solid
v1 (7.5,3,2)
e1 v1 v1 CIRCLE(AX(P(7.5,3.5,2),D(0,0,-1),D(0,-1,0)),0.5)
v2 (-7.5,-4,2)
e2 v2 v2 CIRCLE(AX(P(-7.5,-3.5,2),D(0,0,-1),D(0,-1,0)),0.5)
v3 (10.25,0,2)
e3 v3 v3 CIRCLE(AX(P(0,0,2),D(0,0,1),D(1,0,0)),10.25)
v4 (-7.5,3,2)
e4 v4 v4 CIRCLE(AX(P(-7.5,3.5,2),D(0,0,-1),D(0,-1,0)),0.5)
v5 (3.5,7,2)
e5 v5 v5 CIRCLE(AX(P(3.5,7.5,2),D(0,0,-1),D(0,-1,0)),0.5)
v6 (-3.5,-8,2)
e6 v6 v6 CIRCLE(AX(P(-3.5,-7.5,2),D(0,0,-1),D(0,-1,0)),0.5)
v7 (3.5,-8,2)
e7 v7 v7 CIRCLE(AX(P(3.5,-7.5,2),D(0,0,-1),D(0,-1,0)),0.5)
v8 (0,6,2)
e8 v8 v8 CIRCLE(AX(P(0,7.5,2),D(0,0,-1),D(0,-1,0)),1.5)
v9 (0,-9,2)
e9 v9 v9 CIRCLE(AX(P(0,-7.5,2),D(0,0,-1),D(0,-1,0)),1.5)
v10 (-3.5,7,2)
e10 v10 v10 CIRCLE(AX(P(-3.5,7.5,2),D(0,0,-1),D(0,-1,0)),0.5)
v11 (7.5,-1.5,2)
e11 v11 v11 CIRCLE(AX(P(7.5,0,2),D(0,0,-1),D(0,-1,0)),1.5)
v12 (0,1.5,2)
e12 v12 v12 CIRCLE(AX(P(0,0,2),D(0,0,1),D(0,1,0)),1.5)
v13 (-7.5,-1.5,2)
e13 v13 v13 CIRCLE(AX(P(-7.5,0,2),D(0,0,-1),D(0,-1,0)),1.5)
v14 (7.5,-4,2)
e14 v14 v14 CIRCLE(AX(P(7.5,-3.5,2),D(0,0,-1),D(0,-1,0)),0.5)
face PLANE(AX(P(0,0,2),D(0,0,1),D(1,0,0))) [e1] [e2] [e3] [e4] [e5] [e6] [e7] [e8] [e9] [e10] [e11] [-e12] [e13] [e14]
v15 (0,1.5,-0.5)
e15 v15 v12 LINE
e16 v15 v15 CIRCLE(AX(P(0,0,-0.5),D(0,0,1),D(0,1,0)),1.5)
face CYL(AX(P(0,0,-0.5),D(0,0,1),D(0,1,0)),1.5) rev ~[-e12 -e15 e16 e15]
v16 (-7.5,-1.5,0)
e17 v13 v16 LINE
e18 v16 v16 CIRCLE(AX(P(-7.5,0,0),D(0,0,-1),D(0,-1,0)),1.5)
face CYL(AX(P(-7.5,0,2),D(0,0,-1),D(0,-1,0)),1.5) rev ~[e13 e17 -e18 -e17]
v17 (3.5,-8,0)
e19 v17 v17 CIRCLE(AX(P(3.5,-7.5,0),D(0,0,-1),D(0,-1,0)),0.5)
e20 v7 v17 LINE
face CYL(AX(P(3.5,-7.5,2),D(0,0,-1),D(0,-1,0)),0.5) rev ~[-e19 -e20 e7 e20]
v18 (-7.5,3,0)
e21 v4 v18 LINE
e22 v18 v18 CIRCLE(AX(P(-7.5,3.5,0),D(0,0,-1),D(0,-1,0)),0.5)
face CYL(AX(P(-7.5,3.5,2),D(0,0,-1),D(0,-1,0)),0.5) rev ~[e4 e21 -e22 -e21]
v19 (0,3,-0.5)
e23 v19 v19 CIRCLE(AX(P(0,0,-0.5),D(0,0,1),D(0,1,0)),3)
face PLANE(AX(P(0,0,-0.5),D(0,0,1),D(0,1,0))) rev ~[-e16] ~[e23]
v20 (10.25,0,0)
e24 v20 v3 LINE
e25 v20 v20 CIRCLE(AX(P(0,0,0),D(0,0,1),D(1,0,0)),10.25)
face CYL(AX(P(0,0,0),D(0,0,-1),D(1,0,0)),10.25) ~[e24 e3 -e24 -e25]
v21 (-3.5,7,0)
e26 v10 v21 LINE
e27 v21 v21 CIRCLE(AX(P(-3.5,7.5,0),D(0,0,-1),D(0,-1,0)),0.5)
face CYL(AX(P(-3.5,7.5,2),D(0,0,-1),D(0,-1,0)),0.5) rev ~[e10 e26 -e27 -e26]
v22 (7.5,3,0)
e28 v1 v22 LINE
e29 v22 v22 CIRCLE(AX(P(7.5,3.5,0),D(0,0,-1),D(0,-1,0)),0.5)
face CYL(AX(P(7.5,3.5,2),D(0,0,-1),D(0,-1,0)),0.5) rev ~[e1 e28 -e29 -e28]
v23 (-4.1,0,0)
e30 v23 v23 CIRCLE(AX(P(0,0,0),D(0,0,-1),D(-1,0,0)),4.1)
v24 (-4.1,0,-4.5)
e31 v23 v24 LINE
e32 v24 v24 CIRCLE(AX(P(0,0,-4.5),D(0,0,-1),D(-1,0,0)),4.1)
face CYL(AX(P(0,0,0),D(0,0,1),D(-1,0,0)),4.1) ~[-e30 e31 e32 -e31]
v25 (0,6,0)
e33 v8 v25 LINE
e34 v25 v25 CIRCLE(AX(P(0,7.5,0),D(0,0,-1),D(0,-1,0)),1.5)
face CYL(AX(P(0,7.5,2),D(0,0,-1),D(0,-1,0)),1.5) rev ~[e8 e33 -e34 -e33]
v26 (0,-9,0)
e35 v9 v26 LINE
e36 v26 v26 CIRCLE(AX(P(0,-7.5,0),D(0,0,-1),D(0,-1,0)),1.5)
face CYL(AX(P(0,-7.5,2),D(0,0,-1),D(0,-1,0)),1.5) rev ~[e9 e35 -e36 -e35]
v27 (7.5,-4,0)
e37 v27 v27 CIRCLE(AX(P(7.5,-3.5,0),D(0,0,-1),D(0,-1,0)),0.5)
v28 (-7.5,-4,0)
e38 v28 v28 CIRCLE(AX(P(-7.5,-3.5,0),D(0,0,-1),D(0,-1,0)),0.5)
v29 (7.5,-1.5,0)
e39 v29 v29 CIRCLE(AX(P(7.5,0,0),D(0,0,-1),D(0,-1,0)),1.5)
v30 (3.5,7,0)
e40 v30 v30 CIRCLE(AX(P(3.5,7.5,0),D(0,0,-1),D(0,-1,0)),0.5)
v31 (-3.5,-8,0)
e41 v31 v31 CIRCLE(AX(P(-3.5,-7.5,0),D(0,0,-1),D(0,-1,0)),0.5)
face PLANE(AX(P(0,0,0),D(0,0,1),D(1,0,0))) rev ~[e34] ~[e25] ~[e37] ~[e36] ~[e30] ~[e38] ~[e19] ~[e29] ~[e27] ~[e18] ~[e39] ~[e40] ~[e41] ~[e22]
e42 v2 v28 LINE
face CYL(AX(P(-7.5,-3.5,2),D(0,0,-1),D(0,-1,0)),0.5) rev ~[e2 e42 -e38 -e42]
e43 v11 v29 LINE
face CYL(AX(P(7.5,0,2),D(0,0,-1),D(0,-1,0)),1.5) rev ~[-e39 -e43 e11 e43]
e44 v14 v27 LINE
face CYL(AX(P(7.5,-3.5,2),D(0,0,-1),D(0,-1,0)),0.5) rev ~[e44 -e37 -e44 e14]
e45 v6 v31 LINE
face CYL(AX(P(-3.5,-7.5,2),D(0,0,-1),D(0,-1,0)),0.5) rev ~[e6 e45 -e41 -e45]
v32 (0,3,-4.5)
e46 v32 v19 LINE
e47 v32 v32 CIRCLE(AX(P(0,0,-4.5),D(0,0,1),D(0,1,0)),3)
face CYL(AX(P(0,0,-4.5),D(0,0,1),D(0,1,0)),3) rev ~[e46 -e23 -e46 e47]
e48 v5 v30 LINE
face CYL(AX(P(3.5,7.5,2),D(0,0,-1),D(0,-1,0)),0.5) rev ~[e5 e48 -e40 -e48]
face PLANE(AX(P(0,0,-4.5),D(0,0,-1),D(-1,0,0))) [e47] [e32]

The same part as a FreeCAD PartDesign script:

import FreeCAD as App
import Part
import Sketcher

V = App.Vector

doc = App.newDocument("Part")
body = doc.addObject("PartDesign::Body", "Body")

# Sketch on XY plane
sketch1 = body.newObject("Sketcher::SketchObject", "Sketch")
sketch1.AttachmentSupport = (doc.getObject("XY_Plane"), [""])
sketch1.MapMode = "FlatFace"
sketch1.addGeometry(Part.Circle(V(0, 0, 0), V(0, 0, 1), 10), False)
sketch1.addConstraint(Sketcher.Constraint("Coincident", 0, 3, -1, 1))
sketch1.addConstraint(Sketcher.Constraint("Diameter", 0, 20.5))
pad1 = body.newObject("PartDesign::Pad", "Pad")
pad1.Profile = sketch1
pad1.Length = 2

# Sketch on XY plane
sketch2 = body.newObject("Sketcher::SketchObject", "Sketch001")
sketch2.AttachmentSupport = (doc.getObject("XY_Plane"), [""])
sketch2.MapMode = "FlatFace"
sketch2.addGeometry(Part.Circle(V(0, 0, 0), V(0, 0, 1), 4.1), False)
sketch2.addConstraint(Sketcher.Constraint("Coincident", 0, 3, -1, 1))
sketch2.addConstraint(Sketcher.Constraint("Diameter", 0, 8.2))
pad2 = body.newObject("PartDesign::Pad", "Pad001")
pad2.Profile = sketch2
pad2.Length = 4.5
pad2.Reversed = True

# Sketch on XY plane
sketch3 = body.newObject("Sketcher::SketchObject", "Sketch002")
sketch3.AttachmentSupport = (doc.getObject("XY_Plane"), [""])
sketch3.MapMode = "FlatFace"
sketch3.AttachmentOffset = App.Placement(V(0, 0, -4.5), App.Rotation())
sketch3.addGeometry(Part.Circle(V(0, 0, 0), V(0, 0, 1), 1.5), False)
sketch3.addConstraint(Sketcher.Constraint("Coincident", 0, 3, -1, 1))
sketch3.addConstraint(Sketcher.Constraint("Diameter", 0, 3.0))
doc.recompute()
hole = body.newObject("PartDesign::Hole", "Hole")
hole.Profile = sketch3
hole.ThreadType = "None"
hole.Diameter = 3
hole.DepthType = "ThroughAll"
hole.HoleCutType = "Counterbore"
hole.HoleCutDiameter = 6
hole.HoleCutDepth = 4
hole.Reversed = True

# Sketch on XY plane
sketch4 = body.newObject("Sketcher::SketchObject", "Sketch003")
sketch4.AttachmentSupport = (doc.getObject("XY_Plane"), [""])
sketch4.MapMode = "FlatFace"
sketch4.AttachmentOffset = App.Placement(V(0, 0, 2), App.Rotation())
sketch4.addGeometry(Part.Circle(V(7.5, 0, 0), V(0, 0, 1), 1.5), False)
sketch4.addGeometry(Part.Circle(V(0, 7.5, 0), V(0, 0, 1), 1.5), False)
sketch4.addGeometry(Part.Circle(V(-7.5, 0, 0), V(0, 0, 1), 1.5), False)
sketch4.addGeometry(Part.Circle(V(0, -7.5, 0), V(0, 0, 1), 1.5), False)
sketch4.addConstraint(Sketcher.Constraint("Equal", 0, 1))
sketch4.addConstraint(Sketcher.Constraint("Equal", 1, 2))
sketch4.addConstraint(Sketcher.Constraint("Equal", 2, 3))
sketch4.addConstraint(Sketcher.Constraint("Symmetric", 0, 3, 2, 3, -1, 1))
sketch4.addConstraint(Sketcher.Constraint("Symmetric", 1, 3, 3, 3, -1, 1))
sketch4.addConstraint(Sketcher.Constraint("PointOnObject", 0, 3, -1))
sketch4.addConstraint(Sketcher.Constraint("PointOnObject", 1, 3, -2))
sketch4.addConstraint(Sketcher.Constraint("Diameter", 0, 3.0))
sketch4.addConstraint(Sketcher.Constraint("DistanceX", 2, 3, 0, 3, 15.0))
sketch4.addConstraint(Sketcher.Constraint("DistanceY", 3, 3, 1, 3, 15.0))
doc.recompute()
hole2 = body.newObject("PartDesign::Hole", "Hole001")
hole2.Profile = sketch4
hole2.ThreadType = "None"
hole2.Diameter = 3
hole2.DepthType = "ThroughAll"

# Sketch on XY plane
sketch5 = body.newObject("Sketcher::SketchObject", "Sketch004")
sketch5.AttachmentSupport = (doc.getObject("XY_Plane"), [""])
sketch5.MapMode = "FlatFace"
sketch5.AttachmentOffset = App.Placement(V(0, 0, 2), App.Rotation())
sketch5.addGeometry(Part.Circle(V(7.5, 3.5, 0), V(0, 0, 1), 0.5), False)
sketch5.addGeometry(Part.Circle(V(7.5, -3.5, 0), V(0, 0, 1), 0.5), False)
sketch5.addGeometry(Part.Circle(V(-3.5, 7.5, 0), V(0, 0, 1), 0.5), False)
sketch5.addGeometry(Part.Circle(V(3.5, 7.5, 0), V(0, 0, 1), 0.5), False)
sketch5.addGeometry(Part.Circle(V(-7.5, -3.5, 0), V(0, 0, 1), 0.5), False)
sketch5.addGeometry(Part.Circle(V(-7.5, 3.5, 0), V(0, 0, 1), 0.5), False)
sketch5.addGeometry(Part.Circle(V(3.5, -7.5, 0), V(0, 0, 1), 0.5), False)
sketch5.addGeometry(Part.Circle(V(-3.5, -7.5, 0), V(0, 0, 1), 0.5), False)
sketch5.addConstraint(Sketcher.Constraint("Equal", 0, 1))
sketch5.addConstraint(Sketcher.Constraint("Equal", 1, 2))
sketch5.addConstraint(Sketcher.Constraint("Equal", 2, 3))
sketch5.addConstraint(Sketcher.Constraint("Equal", 3, 4))
sketch5.addConstraint(Sketcher.Constraint("Equal", 4, 5))
sketch5.addConstraint(Sketcher.Constraint("Equal", 5, 6))
sketch5.addConstraint(Sketcher.Constraint("Equal", 6, 7))
sketch5.addConstraint(Sketcher.Constraint("Symmetric", 0, 3, 4, 3, -1, 1))
sketch5.addConstraint(Sketcher.Constraint("Symmetric", 1, 3, 5, 3, -1, 1))
sketch5.addConstraint(Sketcher.Constraint("Symmetric", 2, 3, 6, 3, -1, 1))
sketch5.addConstraint(Sketcher.Constraint("Symmetric", 3, 3, 7, 3, -1, 1))
sketch5.addConstraint(Sketcher.Constraint("Symmetric", 2, 3, 3, 3, -2))
sketch5.addConstraint(Sketcher.Constraint("Symmetric", 1, 3, 4, 3, -2))
sketch5.addConstraint(Sketcher.Constraint("Diameter", 0, 1.0))
sketch5.addConstraint(Sketcher.Constraint("DistanceY", 1, 3, 0, 3, 7.0))
sketch5.addConstraint(Sketcher.Constraint("DistanceX", 2, 3, 0, 3, 11.0))
sketch5.addConstraint(Sketcher.Constraint("DistanceY", 0, 3, 2, 3, 4.0))
sketch5.addConstraint(Sketcher.Constraint("DistanceX", 3, 3, 0, 3, 4.0))
doc.recompute()
hole3 = body.newObject("PartDesign::Hole", "Hole002")
hole3.Profile = sketch5
hole3.ThreadType = "None"
hole3.Diameter = 1
hole3.DepthType = "ThroughAll"

doc.recompute()
